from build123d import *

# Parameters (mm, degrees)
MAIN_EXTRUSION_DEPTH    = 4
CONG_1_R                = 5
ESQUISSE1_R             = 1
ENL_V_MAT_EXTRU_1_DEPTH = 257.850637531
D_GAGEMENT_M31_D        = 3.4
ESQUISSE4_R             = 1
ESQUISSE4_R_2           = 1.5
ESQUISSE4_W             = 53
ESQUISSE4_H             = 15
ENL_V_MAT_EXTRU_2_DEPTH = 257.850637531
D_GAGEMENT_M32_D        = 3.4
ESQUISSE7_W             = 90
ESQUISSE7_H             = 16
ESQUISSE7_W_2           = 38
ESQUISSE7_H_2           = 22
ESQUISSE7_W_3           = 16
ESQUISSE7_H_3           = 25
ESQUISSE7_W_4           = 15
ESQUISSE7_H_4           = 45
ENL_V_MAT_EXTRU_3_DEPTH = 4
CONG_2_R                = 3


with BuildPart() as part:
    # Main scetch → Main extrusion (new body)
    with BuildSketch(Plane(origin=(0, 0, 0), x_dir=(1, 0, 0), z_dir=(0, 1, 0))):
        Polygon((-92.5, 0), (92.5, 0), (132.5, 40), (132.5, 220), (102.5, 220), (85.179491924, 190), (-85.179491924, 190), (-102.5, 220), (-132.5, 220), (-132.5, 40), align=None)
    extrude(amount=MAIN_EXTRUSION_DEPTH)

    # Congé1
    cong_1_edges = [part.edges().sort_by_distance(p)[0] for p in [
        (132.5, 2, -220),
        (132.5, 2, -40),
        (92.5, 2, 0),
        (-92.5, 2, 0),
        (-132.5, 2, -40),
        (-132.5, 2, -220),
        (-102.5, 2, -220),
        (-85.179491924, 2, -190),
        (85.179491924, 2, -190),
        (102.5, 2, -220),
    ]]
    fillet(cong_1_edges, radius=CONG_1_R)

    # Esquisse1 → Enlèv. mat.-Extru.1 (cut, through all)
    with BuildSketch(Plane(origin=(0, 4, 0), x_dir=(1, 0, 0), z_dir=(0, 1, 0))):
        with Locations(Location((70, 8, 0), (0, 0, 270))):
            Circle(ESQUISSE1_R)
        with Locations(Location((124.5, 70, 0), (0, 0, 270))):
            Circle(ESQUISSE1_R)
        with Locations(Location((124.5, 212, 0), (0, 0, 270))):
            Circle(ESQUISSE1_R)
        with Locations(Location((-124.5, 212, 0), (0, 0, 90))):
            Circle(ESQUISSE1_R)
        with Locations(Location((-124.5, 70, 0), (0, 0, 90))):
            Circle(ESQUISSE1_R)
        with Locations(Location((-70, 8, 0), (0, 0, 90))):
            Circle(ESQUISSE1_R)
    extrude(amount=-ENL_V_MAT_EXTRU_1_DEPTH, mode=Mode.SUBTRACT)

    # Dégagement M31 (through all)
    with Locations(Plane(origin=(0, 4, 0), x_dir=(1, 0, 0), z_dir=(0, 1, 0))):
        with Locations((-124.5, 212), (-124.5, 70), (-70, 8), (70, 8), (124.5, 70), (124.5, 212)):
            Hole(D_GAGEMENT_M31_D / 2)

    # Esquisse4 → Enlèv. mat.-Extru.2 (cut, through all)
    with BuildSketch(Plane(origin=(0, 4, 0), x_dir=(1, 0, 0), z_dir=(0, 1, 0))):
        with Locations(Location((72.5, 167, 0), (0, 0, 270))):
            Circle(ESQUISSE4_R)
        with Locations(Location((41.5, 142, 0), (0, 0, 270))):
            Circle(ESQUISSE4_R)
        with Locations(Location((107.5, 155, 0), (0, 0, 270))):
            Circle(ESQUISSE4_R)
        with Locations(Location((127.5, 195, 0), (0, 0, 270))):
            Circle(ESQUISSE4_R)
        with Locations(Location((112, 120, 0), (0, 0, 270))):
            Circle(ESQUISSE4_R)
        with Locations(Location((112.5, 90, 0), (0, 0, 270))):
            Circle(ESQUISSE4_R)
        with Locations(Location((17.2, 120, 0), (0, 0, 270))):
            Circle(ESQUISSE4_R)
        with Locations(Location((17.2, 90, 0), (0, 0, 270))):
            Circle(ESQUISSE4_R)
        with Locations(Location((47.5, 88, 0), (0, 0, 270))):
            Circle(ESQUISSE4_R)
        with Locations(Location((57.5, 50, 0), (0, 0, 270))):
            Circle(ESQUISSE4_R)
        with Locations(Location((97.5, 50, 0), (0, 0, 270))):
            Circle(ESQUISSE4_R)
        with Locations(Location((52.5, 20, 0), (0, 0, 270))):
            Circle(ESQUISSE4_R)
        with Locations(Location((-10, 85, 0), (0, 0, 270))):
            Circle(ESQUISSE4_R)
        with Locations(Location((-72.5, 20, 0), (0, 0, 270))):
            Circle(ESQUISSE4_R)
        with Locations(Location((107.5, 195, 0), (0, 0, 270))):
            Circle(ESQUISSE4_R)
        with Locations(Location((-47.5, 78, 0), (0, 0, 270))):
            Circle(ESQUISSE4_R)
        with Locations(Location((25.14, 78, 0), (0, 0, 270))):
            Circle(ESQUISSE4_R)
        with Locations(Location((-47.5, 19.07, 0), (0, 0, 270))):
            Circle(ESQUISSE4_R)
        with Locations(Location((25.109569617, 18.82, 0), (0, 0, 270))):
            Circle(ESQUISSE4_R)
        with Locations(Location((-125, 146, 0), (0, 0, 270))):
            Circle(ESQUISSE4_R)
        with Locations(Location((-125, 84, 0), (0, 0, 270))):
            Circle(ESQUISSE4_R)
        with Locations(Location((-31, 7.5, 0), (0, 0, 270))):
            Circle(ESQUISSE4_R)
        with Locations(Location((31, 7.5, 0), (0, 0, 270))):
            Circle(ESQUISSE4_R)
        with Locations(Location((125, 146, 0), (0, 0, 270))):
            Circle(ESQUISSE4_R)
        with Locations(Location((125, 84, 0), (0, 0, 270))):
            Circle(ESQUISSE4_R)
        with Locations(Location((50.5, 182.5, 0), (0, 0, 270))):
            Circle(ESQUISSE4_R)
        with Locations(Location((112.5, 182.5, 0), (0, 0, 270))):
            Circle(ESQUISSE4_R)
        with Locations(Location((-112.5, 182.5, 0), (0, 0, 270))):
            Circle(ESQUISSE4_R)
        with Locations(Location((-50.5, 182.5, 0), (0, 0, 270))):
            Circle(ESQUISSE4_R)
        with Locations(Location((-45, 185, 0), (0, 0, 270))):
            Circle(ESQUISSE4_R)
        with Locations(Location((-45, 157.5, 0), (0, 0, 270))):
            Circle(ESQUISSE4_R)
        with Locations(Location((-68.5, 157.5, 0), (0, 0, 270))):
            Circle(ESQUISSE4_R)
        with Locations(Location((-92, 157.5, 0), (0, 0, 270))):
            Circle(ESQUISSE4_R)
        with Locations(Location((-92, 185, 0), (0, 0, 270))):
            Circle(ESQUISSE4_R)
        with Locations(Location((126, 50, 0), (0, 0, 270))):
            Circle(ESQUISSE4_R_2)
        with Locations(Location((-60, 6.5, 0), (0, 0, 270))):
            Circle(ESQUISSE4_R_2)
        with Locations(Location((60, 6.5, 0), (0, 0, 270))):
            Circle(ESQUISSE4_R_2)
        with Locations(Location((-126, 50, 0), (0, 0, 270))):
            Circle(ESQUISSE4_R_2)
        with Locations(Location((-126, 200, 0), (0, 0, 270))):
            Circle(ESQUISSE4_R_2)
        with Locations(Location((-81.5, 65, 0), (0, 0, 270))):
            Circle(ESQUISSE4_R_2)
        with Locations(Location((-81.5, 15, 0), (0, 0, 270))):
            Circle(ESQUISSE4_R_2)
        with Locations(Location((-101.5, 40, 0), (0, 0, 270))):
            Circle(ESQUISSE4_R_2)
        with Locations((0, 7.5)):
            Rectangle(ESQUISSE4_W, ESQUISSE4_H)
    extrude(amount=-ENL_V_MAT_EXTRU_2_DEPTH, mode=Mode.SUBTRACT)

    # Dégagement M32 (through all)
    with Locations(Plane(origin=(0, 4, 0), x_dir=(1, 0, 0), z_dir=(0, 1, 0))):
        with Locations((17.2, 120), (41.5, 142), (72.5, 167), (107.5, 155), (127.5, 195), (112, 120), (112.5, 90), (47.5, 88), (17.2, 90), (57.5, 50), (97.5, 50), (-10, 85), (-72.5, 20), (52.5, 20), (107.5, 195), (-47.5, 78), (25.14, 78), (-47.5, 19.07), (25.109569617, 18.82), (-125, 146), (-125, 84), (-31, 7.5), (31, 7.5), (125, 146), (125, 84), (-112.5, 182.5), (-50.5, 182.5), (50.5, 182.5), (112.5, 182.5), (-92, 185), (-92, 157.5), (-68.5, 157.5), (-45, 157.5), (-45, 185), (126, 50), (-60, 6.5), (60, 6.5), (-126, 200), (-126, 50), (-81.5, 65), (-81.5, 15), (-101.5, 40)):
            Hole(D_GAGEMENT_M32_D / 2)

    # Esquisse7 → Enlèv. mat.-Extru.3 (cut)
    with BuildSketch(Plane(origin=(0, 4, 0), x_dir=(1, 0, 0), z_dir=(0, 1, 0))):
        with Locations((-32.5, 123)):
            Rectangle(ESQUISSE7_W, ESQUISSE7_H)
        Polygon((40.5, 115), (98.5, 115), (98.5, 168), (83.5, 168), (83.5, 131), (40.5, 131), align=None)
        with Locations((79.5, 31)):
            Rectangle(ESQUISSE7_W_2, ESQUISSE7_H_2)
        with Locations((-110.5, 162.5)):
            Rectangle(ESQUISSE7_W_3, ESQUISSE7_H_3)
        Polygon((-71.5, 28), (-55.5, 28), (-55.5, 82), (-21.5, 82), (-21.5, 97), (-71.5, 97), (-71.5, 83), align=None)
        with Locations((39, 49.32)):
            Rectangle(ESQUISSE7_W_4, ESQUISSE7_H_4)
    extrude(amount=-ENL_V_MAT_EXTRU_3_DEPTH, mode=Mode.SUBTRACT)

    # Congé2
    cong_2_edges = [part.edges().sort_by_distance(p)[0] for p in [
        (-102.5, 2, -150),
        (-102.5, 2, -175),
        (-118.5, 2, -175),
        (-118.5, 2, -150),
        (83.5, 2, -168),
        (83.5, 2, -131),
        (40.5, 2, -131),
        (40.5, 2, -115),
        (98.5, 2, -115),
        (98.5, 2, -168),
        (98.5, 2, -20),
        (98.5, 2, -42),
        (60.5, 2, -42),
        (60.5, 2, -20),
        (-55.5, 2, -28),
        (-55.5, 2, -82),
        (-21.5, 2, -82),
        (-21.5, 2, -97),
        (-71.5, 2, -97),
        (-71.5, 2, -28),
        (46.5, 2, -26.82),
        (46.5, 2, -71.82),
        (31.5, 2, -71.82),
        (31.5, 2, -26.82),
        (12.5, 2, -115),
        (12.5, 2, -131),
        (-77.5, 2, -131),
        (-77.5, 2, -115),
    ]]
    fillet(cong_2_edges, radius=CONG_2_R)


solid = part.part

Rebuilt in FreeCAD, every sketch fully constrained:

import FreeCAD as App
import Part
import Sketcher
Q = App.Units.Quantity


def edges_at(feature, points):
    """Names of the edges that pass closest to the given points."""
    edges = feature.Shape.Edges
    near = lambda p: min(range(len(edges)), key=lambda i: edges[i].distToShape(Part.Vertex(*p))[0])
    return sorted({f"Edge{near(p) + 1}" for p in points})


def add_polygon(sketch, points):
    """Adds a closed chain of lines whose ends are joined by coincident constraints."""
    first, n = sketch.GeometryCount, len(points)
    for a, b in zip(points, points[1:] + points[:1]):
        sketch.addGeometry(Part.LineSegment(App.Vector(*a, 0), App.Vector(*b, 0)), False)
    for i in range(n):
        sketch.addConstraint(Sketcher.Constraint("Coincident", first + i, 2, first + (i + 1) % n, 1))

doc = App.newDocument("Part")
body = doc.addObject("PartDesign::Body", "Body")

sketch1 = doc.addObject("Sketcher::SketchObject", "Sketch")
body.addObject(sketch1)
sketch1.AttachmentSupport = (doc.XZ_Plane, [""])
sketch1.MapMode = "FlatFace"
add_polygon(sketch1, [(-92, 0), (92, 0), (132, -40), (132, -220), (102, -220), (85, -190), (-85, -190), (-102, -220), (-132, -220), (-132, -40)])
sketch1.addConstraint([
    Sketcher.Constraint("Horizontal", 0),
    Sketcher.Constraint("Vertical", 2),
    Sketcher.Constraint("Horizontal", 3),
    Sketcher.Constraint("Horizontal", 5),
    Sketcher.Constraint("Horizontal", 7),
    Sketcher.Constraint("Vertical", 8),
    Sketcher.Constraint("Symmetric", 0, 2, 9, 2, -1, 1),
    Sketcher.Constraint("Symmetric", 3, 2, 6, 2, -2),
    Sketcher.Constraint("Symmetric", 1, 2, 8, 2, -2),
    Sketcher.Constraint("Perpendicular", 1, 9),
    Sketcher.Constraint("Equal", 4, 6),
    Sketcher.Constraint("DistanceX", 0, 1, 0, 2, 185.0),
    Sketcher.Constraint("DistanceX", 3, 2, 3, 1, 30.0),
    Sketcher.Constraint("DistanceY", 2, 2, 2, 1, 180.0),
    Sketcher.Constraint("Angle", 4, Q("120 deg")),
    Sketcher.Constraint("DistanceY", 1, 2, -1, 1, 40.0),
    Sketcher.Constraint("DistanceY", 4, 2, -1, 1, 190.0),
])
pad1 = doc.addObject("PartDesign::Pad", "Pad")
body.addObject(pad1)
pad1.Profile = sketch1
pad1.Length = 4
pad1.Reversed = True
doc.recompute()

fillet = doc.addObject("PartDesign::Fillet", "Fillet")
body.addObject(fillet)
fillet.Base = (pad1, edges_at(pad1, [
    (132.5, 2, -220),
    (132.5, 2, -40),
    (92.5, 2, 0),
    (-92.5, 2, 0),
    (-132.5, 2, -40),
    (-132.5, 2, -220),
    (-102.5, 2, -220),
    (-85.179, 2, -190),
    (85.179, 2, -190),
    (102.5, 2, -220),
]))
fillet.Radius = 5

sketch2 = doc.addObject("Sketcher::SketchObject", "Sketch001")
body.addObject(sketch2)
sketch2.AttachmentSupport = (doc.XZ_Plane, [""])
sketch2.MapMode = "FlatFace"
sketch2.AttachmentOffset = App.Placement(App.Vector(0, 0, -4), App.Rotation())
sketch2.addGeometry([
    Part.Circle(App.Vector(70, -8, 0), App.Vector(0, 0, 1), 1),
    Part.Circle(App.Vector(124.5, -70, 0), App.Vector(0, 0, 1), 1),
    Part.Circle(App.Vector(124.5, -212, 0), App.Vector(0, 0, 1), 1),
    Part.Circle(App.Vector(-124.5, -212, 0), App.Vector(0, 0, 1), 1),
    Part.Circle(App.Vector(-124.5, -70, 0), App.Vector(0, 0, 1), 1),
    Part.Circle(App.Vector(-70, -8, 0), App.Vector(0, 0, 1), 1),
], False)
sketch2.addConstraint([
    Sketcher.Constraint("Equal", 0, 1),
    Sketcher.Constraint("Equal", 1, 2),
    Sketcher.Constraint("Equal", 2, 3),
    Sketcher.Constraint("Equal", 3, 4),
    Sketcher.Constraint("Equal", 4, 5),
    Sketcher.Constraint("Symmetric", 2, 3, 3, 3, -2),
    Sketcher.Constraint("Symmetric", 1, 3, 4, 3, -2),
    Sketcher.Constraint("Symmetric", 0, 3, 5, 3, -2),
    Sketcher.Constraint("Vertical", 1, 3, 2, 3),
    Sketcher.Constraint("Diameter", 0, 2.0),
    Sketcher.Constraint("DistanceX", -1, 1, 0, 3, 70.0),
    Sketcher.Constraint("DistanceY", 0, 3, -1, 1, 8.0),
    Sketcher.Constraint("DistanceY", 1, 3, -1, 1, 70.0),
    Sketcher.Constraint("DistanceY", 2, 3, -1, 1, 212.0),
    Sketcher.Constraint("DistanceX", 3, 3, 2, 3, 249.0),
])
pocket1 = doc.addObject("PartDesign::Pocket", "Pocket")
body.addObject(pocket1)
pocket1.Profile = sketch2
pocket1.Type = "ThroughAll"
pocket1.Reversed = True

sketch3 = doc.addObject("Sketcher::SketchObject", "Sketch002")
body.addObject(sketch3)
sketch3.AttachmentSupport = (doc.XZ_Plane, [""])
sketch3.MapMode = "FlatFace"
sketch3.AttachmentOffset = App.Placement(App.Vector(0, 0, -4), App.Rotation())
sketch3.addGeometry([
    Part.Circle(App.Vector(-124.5, -212, 0), App.Vector(0, 0, 1), 1.7),
    Part.Circle(App.Vector(-124.5, -70, 0), App.Vector(0, 0, 1), 1.7),
    Part.Circle(App.Vector(-70, -8, 0), App.Vector(0, 0, 1), 1.7),
    Part.Circle(App.Vector(70, -8, 0), App.Vector(0, 0, 1), 1.7),
    Part.Circle(App.Vector(124.5, -70, 0), App.Vector(0, 0, 1), 1.7),
    Part.Circle(App.Vector(124.5, -212, 0), App.Vector(0, 0, 1), 1.7),
], False)
sketch3.addConstraint([
    Sketcher.Constraint("Equal", 0, 1),
    Sketcher.Constraint("Equal", 1, 2),
    Sketcher.Constraint("Equal", 2, 3),
    Sketcher.Constraint("Equal", 3, 4),
    Sketcher.Constraint("Equal", 4, 5),
    Sketcher.Constraint("Symmetric", 2, 3, 3, 3, -2),
    Sketcher.Constraint("Symmetric", 1, 3, 4, 3, -2),
    Sketcher.Constraint("Symmetric", 0, 3, 5, 3, -2),
    Sketcher.Constraint("Vertical", 0, 3, 1, 3),
    Sketcher.Constraint("Diameter", 0, 3.4),
    Sketcher.Constraint("DistanceY", 0, 3, -1, 1, 212.0),
    Sketcher.Constraint("DistanceY", 1, 3, -1, 1, 70.0),
    Sketcher.Constraint("DistanceX", 2, 3, -1, 1, 70.0),
    Sketcher.Constraint("DistanceY", 2, 3, -1, 1, 8.0),
    Sketcher.Constraint("DistanceX", 1, 3, 4, 3, 249.0),
])
doc.recompute()
hole = doc.addObject("PartDesign::Hole", "Hole")
body.addObject(hole)
hole.Profile = sketch3
hole.ThreadType = "None"
hole.Diameter = 3.4
hole.DepthType = "ThroughAll"
hole.Reversed = True

sketch4 = doc.addObject("Sketcher::SketchObject", "Sketch003")
body.addObject(sketch4)
sketch4.AttachmentSupport = (doc.XZ_Plane, [""])
sketch4.MapMode = "FlatFace"
sketch4.AttachmentOffset = App.Placement(App.Vector(0, 0, -4), App.Rotation())
sketch4.addGeometry(Part.Circle(App.Vector(72.5, -167, 0), App.Vector(0, 0, 1), 1), False)
sketch4.addGeometry(Part.Circle(App.Vector(41.5, -142, 0), App.Vector(0, 0, 1), 1), False)
sketch4.addGeometry(Part.Circle(App.Vector(107.5, -155, 0), App.Vector(0, 0, 1), 1), False)
sketch4.addGeometry(Part.Circle(App.Vector(127.5, -195, 0), App.Vector(0, 0, 1), 1), False)
sketch4.addGeometry(Part.Circle(App.Vector(112, -120, 0), App.Vector(0, 0, 1), 1), False)
sketch4.addGeometry(Part.Circle(App.Vector(112.5, -90, 0), App.Vector(0, 0, 1), 1), False)
sketch4.addGeometry(Part.Circle(App.Vector(17.2, -120, 0), App.Vector(0, 0, 1), 1), False)
sketch4.addGeometry(Part.Circle(App.Vector(17.2, -90, 0), App.Vector(0, 0, 1), 1), False)
sketch4.addGeometry(Part.Circle(App.Vector(47.5, -88, 0), App.Vector(0, 0, 1), 1), False)
sketch4.addGeometry(Part.Circle(App.Vector(57.5, -50, 0), App.Vector(0, 0, 1), 1), False)
sketch4.addGeometry(Part.Circle(App.Vector(97.5, -50, 0), App.Vector(0, 0, 1), 1), False)
sketch4.addGeometry(Part.Circle(App.Vector(52.5, -20, 0), App.Vector(0, 0, 1), 1), False)
sketch4.addGeometry(Part.Circle(App.Vector(-10, -85, 0), App.Vector(0, 0, 1), 1), False)
sketch4.addGeometry(Part.Circle(App.Vector(-72.5, -20, 0), App.Vector(0, 0, 1), 1), False)
sketch4.addGeometry(Part.Circle(App.Vector(107.5, -195, 0), App.Vector(0, 0, 1), 1), False)
sketch4.addGeometry(Part.Circle(App.Vector(-47.5, -78, 0), App.Vector(0, 0, 1), 1), False)
sketch4.addGeometry(Part.Circle(App.Vector(25.1, -78, 0), App.Vector(0, 0, 1), 1), False)
sketch4.addGeometry(Part.Circle(App.Vector(-47.5, -19.1, 0), App.Vector(0, 0, 1), 1), False)
sketch4.addGeometry(Part.Circle(App.Vector(25.1, -18.8, 0), App.Vector(0, 0, 1), 1), False)
sketch4.addGeometry(Part.Circle(App.Vector(-125, -146, 0), App.Vector(0, 0, 1), 1), False)
sketch4.addGeometry(Part.Circle(App.Vector(-125, -84, 0), App.Vector(0, 0, 1), 1), False)
sketch4.addGeometry(Part.Circle(App.Vector(-31, -7.5, 0), App.Vector(0, 0, 1), 1), False)
sketch4.addGeometry(Part.Circle(App.Vector(31, -7.5, 0), App.Vector(0, 0, 1), 1), False)
sketch4.addGeometry(Part.Circle(App.Vector(125, -146, 0), App.Vector(0, 0, 1), 1), False)
sketch4.addGeometry(Part.Circle(App.Vector(125, -84, 0), App.Vector(0, 0, 1), 1), False)
sketch4.addGeometry(Part.Circle(App.Vector(50.5, -182.5, 0), App.Vector(0, 0, 1), 1), False)
sketch4.addGeometry(Part.Circle(App.Vector(112.5, -182.5, 0), App.Vector(0, 0, 1), 1), False)
sketch4.addGeometry(Part.Circle(App.Vector(-112.5, -182.5, 0), App.Vector(0, 0, 1), 1), False)
sketch4.addGeometry(Part.Circle(App.Vector(-50.5, -182.5, 0), App.Vector(0, 0, 1), 1), False)
sketch4.addGeometry(Part.Circle(App.Vector(-45, -185, 0), App.Vector(0, 0, 1), 1), False)
sketch4.addGeometry(Part.Circle(App.Vector(-45, -157.5, 0), App.Vector(0, 0, 1), 1), False)
sketch4.addGeometry(Part.Circle(App.Vector(-68.5, -157.5, 0), App.Vector(0, 0, 1), 1), False)
sketch4.addGeometry(Part.Circle(App.Vector(-92, -157.5, 0), App.Vector(0, 0, 1), 1), False)
sketch4.addGeometry(Part.Circle(App.Vector(-92, -185, 0), App.Vector(0, 0, 1), 1), False)
sketch4.addGeometry(Part.Circle(App.Vector(126, -50, 0), App.Vector(0, 0, 1), 1.5), False)
sketch4.addGeometry(Part.Circle(App.Vector(-60, -6.5, 0), App.Vector(0, 0, 1), 1.5), False)
sketch4.addGeometry(Part.Circle(App.Vector(60, -6.5, 0), App.Vector(0, 0, 1), 1.5), False)
sketch4.addGeometry(Part.Circle(App.Vector(-126, -50, 0), App.Vector(0, 0, 1), 1.5), False)
sketch4.addGeometry(Part.Circle(App.Vector(-126, -200, 0), App.Vector(0, 0, 1), 1.5), False)
sketch4.addGeometry(Part.Circle(App.Vector(-81.5, -65, 0), App.Vector(0, 0, 1), 1.5), False)
sketch4.addGeometry(Part.Circle(App.Vector(-81.5, -15, 0), App.Vector(0, 0, 1), 1.5), False)
sketch4.addGeometry(Part.Circle(App.Vector(-101.5, -40, 0), App.Vector(0, 0, 1), 1.5), False)
add_polygon(sketch4, [(-26.5, -15), (-26.5, 0), (26.5, 0), (26.5, -15)])
sketch4.addConstraint([
    Sketcher.Constraint("Vertical", 42),
    Sketcher.Constraint("Horizontal", 43),
    Sketcher.Constraint("Vertical", 44),
    Sketcher.Constraint("Horizontal", 45),
    Sketcher.Constraint("Equal", 0, 1),
    Sketcher.Constraint("Equal", 1, 2),
    Sketcher.Constraint("Equal", 2, 3),
    Sketcher.Constraint("Equal", 3, 4),
    Sketcher.Constraint("Equal", 4, 5),
    Sketcher.Constraint("Equal", 5, 6),
    Sketcher.Constraint("Equal", 6, 7),
    Sketcher.Constraint("Equal", 7, 8),
    Sketcher.Constraint("Equal", 8, 9),
    Sketcher.Constraint("Equal", 9, 10),
    Sketcher.Constraint("Equal", 10, 11),
    Sketcher.Constraint("Equal", 11, 12),
    Sketcher.Constraint("Equal", 12, 13),
    Sketcher.Constraint("Equal", 13, 14),
    Sketcher.Constraint("Equal", 14, 15),
    Sketcher.Constraint("Equal", 15, 16),
    Sketcher.Constraint("Equal", 16, 17),
    Sketcher.Constraint("Equal", 17, 18),
    Sketcher.Constraint("Equal", 18, 19),
    Sketcher.Constraint("Equal", 19, 20),
    Sketcher.Constraint("Equal", 20, 21),
    Sketcher.Constraint("Equal", 21, 22),
    Sketcher.Constraint("Equal", 22, 23),
    Sketcher.Constraint("Equal", 23, 24),
    Sketcher.Constraint("Equal", 24, 25),
    Sketcher.Constraint("Equal", 25, 26),
    Sketcher.Constraint("Equal", 26, 27),
    Sketcher.Constraint("Equal", 27, 28),
    Sketcher.Constraint("Equal", 28, 29),
    Sketcher.Constraint("Equal", 29, 30),
    Sketcher.Constraint("Equal", 30, 31),
    Sketcher.Constraint("Equal", 31, 32),
    Sketcher.Constraint("Equal", 32, 33),
    Sketcher.Constraint("Equal", 34, 35),
    Sketcher.Constraint("Equal", 35, 36),
    Sketcher.Constraint("Equal", 36, 37),
    Sketcher.Constraint("Equal", 37, 38),
    Sketcher.Constraint("Equal", 38, 39),
    Sketcher.Constraint("Equal", 39, 40),
    Sketcher.Constraint("Equal", 40, 41),
    Sketcher.Constraint("Symmetric", 42, 2, 43, 2, -1, 1),
    Sketcher.Constraint("Symmetric", 21, 3, 22, 3, -2),
    Sketcher.Constraint("Symmetric", 19, 3, 23, 3, -2),
    Sketcher.Constraint("Symmetric", 20, 3, 24, 3, -2),
    Sketcher.Constraint("Symmetric", 26, 3, 27, 3, -2),
    Sketcher.Constraint("Symmetric", 25, 3, 28, 3, -2),
    Sketcher.Constraint("Symmetric", 35, 3, 36, 3, -2),
    Sketcher.Constraint("Symmetric", 34, 3, 37, 3, -2),
    Sketcher.Constraint("Horizontal", 4, 3, 6, 3),
    Sketcher.Constraint("Horizontal", 5, 3, 7, 3),
    Sketcher.Constraint("Horizontal", 9, 3, 10, 3),
    Sketcher.Constraint("Horizontal", 11, 3, 13, 3),
    Sketcher.Constraint("Horizontal", 3, 3, 14, 3),
    Sketcher.Constraint("Horizontal", 15, 3, 16, 3),
    Sketcher.Constraint("Horizontal", 25, 3, 26, 3),
    Sketcher.Constraint("Horizontal", 30, 3, 31, 3),
    Sketcher.Constraint("Horizontal", 31, 3, 32, 3),
    Sketcher.Constraint("Horizontal", 29, 3, 33, 3),
    Sketcher.Constraint("Horizontal", 10, 3, 34, 3),
    Sketcher.Constraint("Horizontal", 40, 3, 44, 2),
    Sketcher.Constraint("Vertical", 6, 3, 7, 3),
    Sketcher.Constraint("Vertical", 2, 3, 14, 3),
    Sketcher.Constraint("Vertical", 15, 3, 17, 3),
    Sketcher.Constraint("Vertical", 19, 3, 20, 3),
    Sketcher.Constraint("Vertical", 5, 3, 26, 3),
    Sketcher.Constraint("Vertical", 29, 3, 30, 3),
    Sketcher.Constraint("Vertical", 32, 3, 33, 3),
    Sketcher.Constraint("Vertical", 37, 3, 38, 3),
    Sketcher.Constraint("Vertical", 39, 3, 40, 3),
    Sketcher.Constraint("Diameter", 0, 2.0),
    Sketcher.Constraint("Diameter", 34, 3.0),
    Sketcher.Constraint("DistanceX", 43, 1, 43, 2, 53.0),
    Sketcher.Constraint("DistanceY", 42, 1, 42, 2, 15.0),
    Sketcher.Constraint("DistanceY", 0, 3, -1, 1, 167.0),
    Sketcher.Constraint("DistanceY", 1, 3, -1, 1, 142.0),
    Sketcher.Constraint("DistanceY", 2, 3, -1, 1, 155.0),
    Sketcher.Constraint("DistanceY", 3, 3, -1, 1, 195.0),
    Sketcher.Constraint("DistanceX", -1, 1, 4, 3, 112.0),
    Sketcher.Constraint("DistanceY", 4, 3, -1, 1, 120.0),
    Sketcher.Constraint("DistanceY", 5, 3, -1, 1, 90.0),
    Sketcher.Constraint("DistanceY", 8, 3, -1, 1, 88.0),
    Sketcher.Constraint("DistanceY", 9, 3, -1, 1, 50.0),
    Sketcher.Constraint("DistanceY", 11, 3, -1, 1, 20.0),
    Sketcher.Constraint("DistanceX", 12, 3, -1, 1, 10.0),
    Sketcher.Constraint("DistanceY", 12, 3, -1, 1, 85.0),
    Sketcher.Constraint("DistanceY", 15, 3, -1, 1, 78.0),
    Sketcher.Constraint("DistanceX", 19, 3, -1, 1, 125.0),
    Sketcher.Constraint("DistanceY", 19, 3, -1, 1, 146.0),
    Sketcher.Constraint("DistanceY", 20, 3, -1, 1, 84.0),
    Sketcher.Constraint("DistanceX", 21, 3, -1, 1, 31.0),
    Sketcher.Constraint("DistanceX", 29, 3, -1, 1, 45.0),
    Sketcher.Constraint("DistanceY", 29, 3, -1, 1, 185.0),
    Sketcher.Constraint("DistanceX", 32, 3, -1, 1, 92.0),
    Sketcher.Constraint("DistanceX", -1, 1, 34, 3, 126.0),
    Sketcher.Constraint("DistanceX", 35, 3, -1, 1, 60.0),
    Sketcher.Constraint("DistanceY", 38, 3, -1, 1, 200.0),
    Sketcher.Constraint("DistanceY", 39, 3, -1, 1, 65.0),
    Sketcher.Constraint("DistanceY", 41, 3, -1, 1, 40.0),
    Sketcher.Constraint("DistanceX", 1, 3, 0, 3, 31.0),
    Sketcher.Constraint("DistanceX", 0, 3, 2, 3, 35.0),
    Sketcher.Constraint("DistanceX", 2, 3, 3, 3, 20.0),
    Sketcher.Constraint("DistanceX", 2, 3, 5, 3, 5.0),
    Sketcher.Constraint("DistanceX", 1, 3, 8, 3, 6.0),
    Sketcher.Constraint("DistanceX", 8, 3, 9, 3, 10.0),
    Sketcher.Constraint("DistanceX", 9, 3, 10, 3, 40.0),
    Sketcher.Constraint("DistanceX", 11, 3, 9, 3, 5.0),
    Sketcher.Constraint("DistanceX", 13, 3, 11, 3, 125.0),
    Sketcher.Constraint("DistanceX", 13, 3, 15, 3, 25.0),
    Sketcher.Constraint("DistanceX", 25, 3, 0, 3, 22.0),
    Sketcher.Constraint("DistanceX", 27, 3, 15, 3, 65.0),
    Sketcher.Constraint("DistanceY", 28, 3, 30, 3, 25.0),
    Sketcher.Constraint("DistanceX", 31, 3, 28, 3, 18.0),
    Sketcher.Constraint("DistanceY", 21, 3, 35, 3, 1.0),
    Sketcher.Constraint("DistanceX", 39, 3, 15, 3, 34.0),
    Sketcher.Constraint("DistanceX", 41, 3, 39, 3, 20.0),
    Sketcher.Constraint("DistanceX", -1, 1, 6, 3, 17.2),
    Sketcher.Constraint("DistanceY", 21, 3, -1, 1, 7.5),
    Sketcher.Constraint("DistanceY", 25, 3, -1, 1, 182.5),
    Sketcher.Constraint("DistanceX", -1, 1, 16, 3, 25.14),
    Sketcher.Constraint("DistanceY", 17, 3, -1, 1, 19.07),
    Sketcher.Constraint("DistanceY", 18, 3, -1, 1, 18.82),
    Sketcher.Constraint("DistanceX", -1, 1, 18, 3, 25.10957),
])
pocket2 = doc.addObject("PartDesign::Pocket", "Pocket001")
body.addObject(pocket2)
pocket2.Profile = sketch4
pocket2.Type = "ThroughAll"
pocket2.Reversed = True

sketch5 = doc.addObject("Sketcher::SketchObject", "Sketch004")
body.addObject(sketch5)
sketch5.AttachmentSupport = (doc.XZ_Plane, [""])
sketch5.MapMode = "FlatFace"
sketch5.AttachmentOffset = App.Placement(App.Vector(0, 0, -4), App.Rotation())
sketch5.addGeometry([
    Part.Circle(App.Vector(17.2, -120, 0), App.Vector(0, 0, 1), 1.7),
    Part.Circle(App.Vector(41.5, -142, 0), App.Vector(0, 0, 1), 1.7),
    Part.Circle(App.Vector(72.5, -167, 0), App.Vector(0, 0, 1), 1.7),
    Part.Circle(App.Vector(107.5, -155, 0), App.Vector(0, 0, 1), 1.7),
    Part.Circle(App.Vector(127.5, -195, 0), App.Vector(0, 0, 1), 1.7),
    Part.Circle(App.Vector(112, -120, 0), App.Vector(0, 0, 1), 1.7),
    Part.Circle(App.Vector(112.5, -90, 0), App.Vector(0, 0, 1), 1.7),
    Part.Circle(App.Vector(47.5, -88, 0), App.Vector(0, 0, 1), 1.7),
    Part.Circle(App.Vector(17.2, -90, 0), App.Vector(0, 0, 1), 1.7),
    Part.Circle(App.Vector(57.5, -50, 0), App.Vector(0, 0, 1), 1.7),
    Part.Circle(App.Vector(97.5, -50, 0), App.Vector(0, 0, 1), 1.7),
    Part.Circle(App.Vector(-10, -85, 0), App.Vector(0, 0, 1), 1.7),
    Part.Circle(App.Vector(-72.5, -20, 0), App.Vector(0, 0, 1), 1.7),
    Part.Circle(App.Vector(52.5, -20, 0), App.Vector(0, 0, 1), 1.7),
    Part.Circle(App.Vector(107.5, -195, 0), App.Vector(0, 0, 1), 1.7),
    Part.Circle(App.Vector(-47.5, -78, 0), App.Vector(0, 0, 1), 1.7),
    Part.Circle(App.Vector(25.1, -78, 0), App.Vector(0, 0, 1), 1.7),
    Part.Circle(App.Vector(-47.5, -19.1, 0), App.Vector(0, 0, 1), 1.7),
    Part.Circle(App.Vector(25.1, -18.8, 0), App.Vector(0, 0, 1), 1.7),
    Part.Circle(App.Vector(-125, -146, 0), App.Vector(0, 0, 1), 1.7),
    Part.Circle(App.Vector(-125, -84, 0), App.Vector(0, 0, 1), 1.7),
    Part.Circle(App.Vector(-31, -7.5, 0), App.Vector(0, 0, 1), 1.7),
    Part.Circle(App.Vector(31, -7.5, 0), App.Vector(0, 0, 1), 1.7),
    Part.Circle(App.Vector(125, -146, 0), App.Vector(0, 0, 1), 1.7),
    Part.Circle(App.Vector(125, -84, 0), App.Vector(0, 0, 1), 1.7),
    Part.Circle(App.Vector(-112.5, -182.5, 0), App.Vector(0, 0, 1), 1.7),
    Part.Circle(App.Vector(-50.5, -182.5, 0), App.Vector(0, 0, 1), 1.7),
    Part.Circle(App.Vector(50.5, -182.5, 0), App.Vector(0, 0, 1), 1.7),
    Part.Circle(App.Vector(112.5, -182.5, 0), App.Vector(0, 0, 1), 1.7),
    Part.Circle(App.Vector(-92, -185, 0), App.Vector(0, 0, 1), 1.7),
    Part.Circle(App.Vector(-92, -157.5, 0), App.Vector(0, 0, 1), 1.7),
    Part.Circle(App.Vector(-68.5, -157.5, 0), App.Vector(0, 0, 1), 1.7),
    Part.Circle(App.Vector(-45, -157.5, 0), App.Vector(0, 0, 1), 1.7),
    Part.Circle(App.Vector(-45, -185, 0), App.Vector(0, 0, 1), 1.7),
    Part.Circle(App.Vector(126, -50, 0), App.Vector(0, 0, 1), 1.7),
    Part.Circle(App.Vector(-60, -6.5, 0), App.Vector(0, 0, 1), 1.7),
    Part.Circle(App.Vector(60, -6.5, 0), App.Vector(0, 0, 1), 1.7),
    Part.Circle(App.Vector(-126, -200, 0), App.Vector(0, 0, 1), 1.7),
    Part.Circle(App.Vector(-126, -50, 0), App.Vector(0, 0, 1), 1.7),
    Part.Circle(App.Vector(-81.5, -65, 0), App.Vector(0, 0, 1), 1.7),
    Part.Circle(App.Vector(-81.5, -15, 0), App.Vector(0, 0, 1), 1.7),
    Part.Circle(App.Vector(-101.5, -40, 0), App.Vector(0, 0, 1), 1.7),
], False)
sketch5.addConstraint([
    Sketcher.Constraint("Equal", 0, 1),
    Sketcher.Constraint("Equal", 1, 2),
    Sketcher.Constraint("Equal", 2, 3),
    Sketcher.Constraint("Equal", 3, 4),
    Sketcher.Constraint("Equal", 4, 5),
    Sketcher.Constraint("Equal", 5, 6),
    Sketcher.Constraint("Equal", 6, 7),
    Sketcher.Constraint("Equal", 7, 8),
    Sketcher.Constraint("Equal", 8, 9),
    Sketcher.Constraint("Equal", 9, 10),
    Sketcher.Constraint("Equal", 10, 11),
    Sketcher.Constraint("Equal", 11, 12),
    Sketcher.Constraint("Equal", 12, 13),
    Sketcher.Constraint("Equal", 13, 14),
    Sketcher.Constraint("Equal", 14, 15),
    Sketcher.Constraint("Equal", 15, 16),
    Sketcher.Constraint("Equal", 16, 17),
    Sketcher.Constraint("Equal", 17, 18),
    Sketcher.Constraint("Equal", 18, 19),
    Sketcher.Constraint("Equal", 19, 20),
    Sketcher.Constraint("Equal", 20, 21),
    Sketcher.Constraint("Equal", 21, 22),
    Sketcher.Constraint("Equal", 22, 23),
    Sketcher.Constraint("Equal", 23, 24),
    Sketcher.Constraint("Equal", 24, 25),
    Sketcher.Constraint("Equal", 25, 26),
    Sketcher.Constraint("Equal", 26, 27),
    Sketcher.Constraint("Equal", 27, 28),
    Sketcher.Constraint("Equal", 28, 29),
    Sketcher.Constraint("Equal", 29, 30),
    Sketcher.Constraint("Equal", 30, 31),
    Sketcher.Constraint("Equal", 31, 32),
    Sketcher.Constraint("Equal", 32, 33),
    Sketcher.Constraint("Equal", 33, 34),
    Sketcher.Constraint("Equal", 34, 35),
    Sketcher.Constraint("Equal", 35, 36),
    Sketcher.Constraint("Equal", 36, 37),
    Sketcher.Constraint("Equal", 37, 38),
    Sketcher.Constraint("Equal", 38, 39),
    Sketcher.Constraint("Equal", 39, 40),
    Sketcher.Constraint("Equal", 40, 41),
    Sketcher.Constraint("Symmetric", 21, 3, 22, 3, -2),
    Sketcher.Constraint("Symmetric", 19, 3, 23, 3, -2),
    Sketcher.Constraint("Symmetric", 20, 3, 24, 3, -2),
    Sketcher.Constraint("Symmetric", 26, 3, 27, 3, -2),
    Sketcher.Constraint("Symmetric", 25, 3, 28, 3, -2),
    Sketcher.Constraint("Symmetric", 35, 3, 36, 3, -2),
    Sketcher.Constraint("Symmetric", 34, 3, 38, 3, -2),
    Sketcher.Constraint("Horizontal", 0, 3, 5, 3),
    Sketcher.Constraint("Horizontal", 6, 3, 8, 3),
    Sketcher.Constraint("Horizontal", 9, 3, 10, 3),
    Sketcher.Constraint("Horizontal", 12, 3, 13, 3),
    Sketcher.Constraint("Horizontal", 4, 3, 14, 3),
    Sketcher.Constraint("Horizontal", 15, 3, 16, 3),
    Sketcher.Constraint("Horizontal", 25, 3, 26, 3),
    Sketcher.Constraint("Horizontal", 30, 3, 31, 3),
    Sketcher.Constraint("Horizontal", 31, 3, 32, 3),
    Sketcher.Constraint("Horizontal", 29, 3, 33, 3),
    Sketcher.Constraint("Horizontal", 10, 3, 34, 3),
    Sketcher.Constraint("Vertical", 0, 3, 8, 3),
    Sketcher.Constraint("Vertical", 3, 3, 14, 3),
    Sketcher.Constraint("Vertical", 15, 3, 17, 3),
    Sketcher.Constraint("Vertical", 19, 3, 20, 3),
    Sketcher.Constraint("Vertical", 6, 3, 28, 3),
    Sketcher.Constraint("Vertical", 29, 3, 30, 3),
    Sketcher.Constraint("Vertical", 32, 3, 33, 3),
    Sketcher.Constraint("Vertical", 37, 3, 38, 3),
    Sketcher.Constraint("Vertical", 39, 3, 40, 3),
    Sketcher.Constraint("Diameter", 0, 3.4),
    Sketcher.Constraint("DistanceY", 0, 3, -1, 1, 120.0),
    Sketcher.Constraint("DistanceY", 1, 3, -1, 1, 142.0),
    Sketcher.Constraint("DistanceY", 2, 3, -1, 1, 167.0),
    Sketcher.Constraint("DistanceY", 3, 3, -1, 1, 155.0),
    Sketcher.Constraint("DistanceY", 4, 3, -1, 1, 195.0),
    Sketcher.Constraint("DistanceX", -1, 1, 5, 3, 112.0),
    Sketcher.Constraint("DistanceY", 6, 3, -1, 1, 90.0),
    Sketcher.Constraint("DistanceY", 7, 3, -1, 1, 88.0),
    Sketcher.Constraint("DistanceY", 9, 3, -1, 1, 50.0),
    Sketcher.Constraint("DistanceX", 11, 3, -1, 1, 10.0),
    Sketcher.Constraint("DistanceY", 11, 3, -1, 1, 85.0),
    Sketcher.Constraint("DistanceY", 12, 3, -1, 1, 20.0),
    Sketcher.Constraint("DistanceY", 15, 3, -1, 1, 78.0),
    Sketcher.Constraint("DistanceX", 19, 3, -1, 1, 125.0),
    Sketcher.Constraint("DistanceY", 19, 3, -1, 1, 146.0),
    Sketcher.Constraint("DistanceY", 20, 3, -1, 1, 84.0),
    Sketcher.Constraint("DistanceX", 21, 3, -1, 1, 31.0),
    Sketcher.Constraint("DistanceX", 29, 3, -1, 1, 92.0),
    Sketcher.Constraint("DistanceY", 29, 3, -1, 1, 185.0),
    Sketcher.Constraint("DistanceX", 32, 3, -1, 1, 45.0),
    Sketcher.Constraint("DistanceX", -1, 1, 34, 3, 126.0),
    Sketcher.Constraint("DistanceX", 35, 3, -1, 1, 60.0),
    Sketcher.Constraint("DistanceY", 37, 3, -1, 1, 200.0),
    Sketcher.Constraint("DistanceY", 39, 3, -1, 1, 65.0),
    Sketcher.Constraint("DistanceY", 40, 3, -1, 1, 15.0),
    Sketcher.Constraint("DistanceY", 41, 3, -1, 1, 40.0),
    Sketcher.Constraint("DistanceX", 1, 3, 2, 3, 31.0),
    Sketcher.Constraint("DistanceX", 2, 3, 3, 3, 35.0),
    Sketcher.Constraint("DistanceX", 3, 3, 4, 3, 20.0),
    Sketcher.Constraint("DistanceX", 3, 3, 6, 3, 5.0),
    Sketcher.Constraint("DistanceX", 1, 3, 7, 3, 6.0),
    Sketcher.Constraint("DistanceX", 7, 3, 9, 3, 10.0),
    Sketcher.Constraint("DistanceX", 9, 3, 10, 3, 40.0),
    Sketcher.Constraint("DistanceX", 12, 3, 9, 3, 130.0),
    Sketcher.Constraint("DistanceX", 13, 3, 9, 3, 5.0),
    Sketcher.Constraint("DistanceX", 12, 3, 15, 3, 25.0),
    Sketcher.Constraint("DistanceX", 25, 3, 15, 3, 65.0),
    Sketcher.Constraint("DistanceX", 25, 3, 26, 3, 62.0),
    Sketcher.Constraint("DistanceY", 25, 3, 30, 3, 25.0),
    Sketcher.Constraint("DistanceX", 31, 3, 26, 3, 18.0),
    Sketcher.Constraint("DistanceY", 21, 3, 35, 3, 1.0),
    Sketcher.Constraint("DistanceX", 39, 3, 15, 3, 34.0),
    Sketcher.Constraint("DistanceX", 41, 3, 39, 3, 20.0),
    Sketcher.Constraint("DistanceX", -1, 1, 0, 3, 17.2),
    Sketcher.Constraint("DistanceY", 21, 3, -1, 1, 7.5),
    Sketcher.Constraint("DistanceY", 25, 3, -1, 1, 182.5),
    Sketcher.Constraint("DistanceX", -1, 1, 16, 3, 25.14),
    Sketcher.Constraint("DistanceY", 17, 3, -1, 1, 19.07),
    Sketcher.Constraint("DistanceY", 18, 3, -1, 1, 18.82),
    Sketcher.Constraint("DistanceX", -1, 1, 18, 3, 25.10957),
])
doc.recompute()
hole2 = doc.addObject("PartDesign::Hole", "Hole001")
body.addObject(hole2)
hole2.Profile = sketch5
hole2.ThreadType = "None"
hole2.Diameter = 3.4
hole2.DepthType = "ThroughAll"
hole2.Reversed = True

sketch6 = doc.addObject("Sketcher::SketchObject", "Sketch005")
body.addObject(sketch6)
sketch6.AttachmentSupport = (doc.XZ_Plane, [""])
sketch6.MapMode = "FlatFace"
sketch6.AttachmentOffset = App.Placement(App.Vector(0, 0, -4), App.Rotation())
add_polygon(sketch6, [(-78, -131), (-78, -115), (12, -115), (12, -131)])
add_polygon(sketch6, [(40, -115), (98, -115), (98, -168), (84, -168), (84, -131), (40, -131)])
add_polygon(sketch6, [(60, -42), (60, -20), (98, -20), (98, -42)])
add_polygon(sketch6, [(-118, -175), (-118, -150), (-102, -150), (-102, -175)])
add_polygon(sketch6, [(-72, -28), (-56, -28), (-56, -82), (-22, -82), (-22, -97), (-72, -97)])
add_polygon(sketch6, [(32, -72), (32, -27), (46, -27), (46, -72)])
sketch6.addConstraint([
    Sketcher.Constraint("Vertical", 0),
    Sketcher.Constraint("Horizontal", 1),
    Sketcher.Constraint("Vertical", 2),
    Sketcher.Constraint("Horizontal", 3),
    Sketcher.Constraint("Horizontal", 4),
    Sketcher.Constraint("Vertical", 5),
    Sketcher.Constraint("Horizontal", 6),
    Sketcher.Constraint("Vertical", 7),
    Sketcher.Constraint("Horizontal", 8),
    Sketcher.Constraint("Vertical", 9),
    Sketcher.Constraint("Vertical", 10),
    Sketcher.Constraint("Horizontal", 11),
    Sketcher.Constraint("Vertical", 12),
    Sketcher.Constraint("Horizontal", 13),
    Sketcher.Constraint("Vertical", 14),
    Sketcher.Constraint("Horizontal", 15),
    Sketcher.Constraint("Vertical", 16),
    Sketcher.Constraint("Horizontal", 17),
    Sketcher.Constraint("Horizontal", 18),
    Sketcher.Constraint("Vertical", 19),
    Sketcher.Constraint("Horizontal", 20),
    Sketcher.Constraint("Vertical", 21),
    Sketcher.Constraint("Horizontal", 22),
    Sketcher.Constraint("Vertical", 23),
    Sketcher.Constraint("Vertical", 24),
    Sketcher.Constraint("Horizontal", 25),
    Sketcher.Constraint("Vertical", 26),
    Sketcher.Constraint("Horizontal", 27),
    Sketcher.Constraint("Horizontal", 1, 2, 4, 2),
    Sketcher.Constraint("Horizontal", 3, 2, 7, 2),
    Sketcher.Constraint("Vertical", 5, 2, 11, 2),
    Sketcher.Constraint("Equal", 17, 18),
    Sketcher.Constraint("Equal", 6, 25),
    Sketcher.Constraint("Equal", 18, 0),
    Sketcher.Constraint("Equal", 27, 21),
    Sketcher.Constraint("DistanceX", 1, 1, 1, 2, 90.0),
    Sketcher.Constraint("DistanceX", 4, 1, 4, 2, 58.0),
    Sketcher.Constraint("DistanceX", 6, 2, 6, 1, 15.0),
    Sketcher.Constraint("DistanceX", 11, 1, 11, 2, 38.0),
    Sketcher.Constraint("DistanceX", 15, 1, 15, 2, 16.0),
    Sketcher.Constraint("DistanceX", 20, 1, 20, 2, 34.0),
    Sketcher.Constraint("DistanceY", 5, 2, 5, 1, 53.0),
    Sketcher.Constraint("DistanceY", 10, 1, 10, 2, 22.0),
    Sketcher.Constraint("DistanceY", 14, 1, 14, 2, 25.0),
    Sketcher.Constraint("DistanceY", 19, 2, 19, 1, 54.0),
    Sketcher.Constraint("DistanceY", 24, 1, 24, 2, 45.0),
    Sketcher.Constraint("DistanceY", 0, 2, -1, 1, 115.0),
    Sketcher.Constraint("DistanceY", 10, 2, -1, 1, 20.0),
    Sketcher.Constraint("DistanceY", 14, 2, -1, 1, 150.0),
    Sketcher.Constraint("DistanceY", 18, 2, -1, 1, 28.0),
    Sketcher.Constraint("DistanceX", 1, 2, 4, 2, 86.0),
    Sketcher.Constraint("DistanceX", 14, 2, 3, 2, 41.0),
    Sketcher.Constraint("DistanceX", 0, 2, 18, 2, 22.0),
    Sketcher.Constraint("DistanceX", 24, 2, 10, 2, 29.0),
    Sketcher.Constraint("DistanceX", 0, 2, -1, 1, 77.5),
    Sketcher.Constraint("DistanceY", 24, 2, -1, 1, 26.82),
])
pocket3 = doc.addObject("PartDesign::Pocket", "Pocket002")
body.addObject(pocket3)
pocket3.Profile = sketch6
pocket3.Length = 4
pocket3.Reversed = True
doc.recompute()

fillet2 = doc.addObject("PartDesign::Fillet", "Fillet001")
body.addObject(fillet2)
fillet2.Base = (pocket3, edges_at(pocket3, [
    (-102.5, 2, -150),
    (-102.5, 2, -175),
    (-118.5, 2, -175),
    (-118.5, 2, -150),
    (83.5, 2, -168),
    (83.5, 2, -131),
    (40.5, 2, -131),
    (40.5, 2, -115),
    (98.5, 2, -115),
    (98.5, 2, -168),
    (98.5, 2, -20),
    (98.5, 2, -42),
    (60.5, 2, -42),
    (60.5, 2, -20),
    (-55.5, 2, -28),
    (-55.5, 2, -82),
    (-21.5, 2, -82),
    (-21.5, 2, -97),
    (-71.5, 2, -97),
    (-71.5, 2, -28),
    (46.5, 2, -26.82),
    (46.5, 2, -71.82),
    (31.5, 2, -71.82),
    (31.5, 2, -26.82),
    (12.5, 2, -115),
    (12.5, 2, -131),
    (-77.5, 2, -131),
    (-77.5, 2, -115),
]))
fillet2.Radius = 3

doc.recompute()
